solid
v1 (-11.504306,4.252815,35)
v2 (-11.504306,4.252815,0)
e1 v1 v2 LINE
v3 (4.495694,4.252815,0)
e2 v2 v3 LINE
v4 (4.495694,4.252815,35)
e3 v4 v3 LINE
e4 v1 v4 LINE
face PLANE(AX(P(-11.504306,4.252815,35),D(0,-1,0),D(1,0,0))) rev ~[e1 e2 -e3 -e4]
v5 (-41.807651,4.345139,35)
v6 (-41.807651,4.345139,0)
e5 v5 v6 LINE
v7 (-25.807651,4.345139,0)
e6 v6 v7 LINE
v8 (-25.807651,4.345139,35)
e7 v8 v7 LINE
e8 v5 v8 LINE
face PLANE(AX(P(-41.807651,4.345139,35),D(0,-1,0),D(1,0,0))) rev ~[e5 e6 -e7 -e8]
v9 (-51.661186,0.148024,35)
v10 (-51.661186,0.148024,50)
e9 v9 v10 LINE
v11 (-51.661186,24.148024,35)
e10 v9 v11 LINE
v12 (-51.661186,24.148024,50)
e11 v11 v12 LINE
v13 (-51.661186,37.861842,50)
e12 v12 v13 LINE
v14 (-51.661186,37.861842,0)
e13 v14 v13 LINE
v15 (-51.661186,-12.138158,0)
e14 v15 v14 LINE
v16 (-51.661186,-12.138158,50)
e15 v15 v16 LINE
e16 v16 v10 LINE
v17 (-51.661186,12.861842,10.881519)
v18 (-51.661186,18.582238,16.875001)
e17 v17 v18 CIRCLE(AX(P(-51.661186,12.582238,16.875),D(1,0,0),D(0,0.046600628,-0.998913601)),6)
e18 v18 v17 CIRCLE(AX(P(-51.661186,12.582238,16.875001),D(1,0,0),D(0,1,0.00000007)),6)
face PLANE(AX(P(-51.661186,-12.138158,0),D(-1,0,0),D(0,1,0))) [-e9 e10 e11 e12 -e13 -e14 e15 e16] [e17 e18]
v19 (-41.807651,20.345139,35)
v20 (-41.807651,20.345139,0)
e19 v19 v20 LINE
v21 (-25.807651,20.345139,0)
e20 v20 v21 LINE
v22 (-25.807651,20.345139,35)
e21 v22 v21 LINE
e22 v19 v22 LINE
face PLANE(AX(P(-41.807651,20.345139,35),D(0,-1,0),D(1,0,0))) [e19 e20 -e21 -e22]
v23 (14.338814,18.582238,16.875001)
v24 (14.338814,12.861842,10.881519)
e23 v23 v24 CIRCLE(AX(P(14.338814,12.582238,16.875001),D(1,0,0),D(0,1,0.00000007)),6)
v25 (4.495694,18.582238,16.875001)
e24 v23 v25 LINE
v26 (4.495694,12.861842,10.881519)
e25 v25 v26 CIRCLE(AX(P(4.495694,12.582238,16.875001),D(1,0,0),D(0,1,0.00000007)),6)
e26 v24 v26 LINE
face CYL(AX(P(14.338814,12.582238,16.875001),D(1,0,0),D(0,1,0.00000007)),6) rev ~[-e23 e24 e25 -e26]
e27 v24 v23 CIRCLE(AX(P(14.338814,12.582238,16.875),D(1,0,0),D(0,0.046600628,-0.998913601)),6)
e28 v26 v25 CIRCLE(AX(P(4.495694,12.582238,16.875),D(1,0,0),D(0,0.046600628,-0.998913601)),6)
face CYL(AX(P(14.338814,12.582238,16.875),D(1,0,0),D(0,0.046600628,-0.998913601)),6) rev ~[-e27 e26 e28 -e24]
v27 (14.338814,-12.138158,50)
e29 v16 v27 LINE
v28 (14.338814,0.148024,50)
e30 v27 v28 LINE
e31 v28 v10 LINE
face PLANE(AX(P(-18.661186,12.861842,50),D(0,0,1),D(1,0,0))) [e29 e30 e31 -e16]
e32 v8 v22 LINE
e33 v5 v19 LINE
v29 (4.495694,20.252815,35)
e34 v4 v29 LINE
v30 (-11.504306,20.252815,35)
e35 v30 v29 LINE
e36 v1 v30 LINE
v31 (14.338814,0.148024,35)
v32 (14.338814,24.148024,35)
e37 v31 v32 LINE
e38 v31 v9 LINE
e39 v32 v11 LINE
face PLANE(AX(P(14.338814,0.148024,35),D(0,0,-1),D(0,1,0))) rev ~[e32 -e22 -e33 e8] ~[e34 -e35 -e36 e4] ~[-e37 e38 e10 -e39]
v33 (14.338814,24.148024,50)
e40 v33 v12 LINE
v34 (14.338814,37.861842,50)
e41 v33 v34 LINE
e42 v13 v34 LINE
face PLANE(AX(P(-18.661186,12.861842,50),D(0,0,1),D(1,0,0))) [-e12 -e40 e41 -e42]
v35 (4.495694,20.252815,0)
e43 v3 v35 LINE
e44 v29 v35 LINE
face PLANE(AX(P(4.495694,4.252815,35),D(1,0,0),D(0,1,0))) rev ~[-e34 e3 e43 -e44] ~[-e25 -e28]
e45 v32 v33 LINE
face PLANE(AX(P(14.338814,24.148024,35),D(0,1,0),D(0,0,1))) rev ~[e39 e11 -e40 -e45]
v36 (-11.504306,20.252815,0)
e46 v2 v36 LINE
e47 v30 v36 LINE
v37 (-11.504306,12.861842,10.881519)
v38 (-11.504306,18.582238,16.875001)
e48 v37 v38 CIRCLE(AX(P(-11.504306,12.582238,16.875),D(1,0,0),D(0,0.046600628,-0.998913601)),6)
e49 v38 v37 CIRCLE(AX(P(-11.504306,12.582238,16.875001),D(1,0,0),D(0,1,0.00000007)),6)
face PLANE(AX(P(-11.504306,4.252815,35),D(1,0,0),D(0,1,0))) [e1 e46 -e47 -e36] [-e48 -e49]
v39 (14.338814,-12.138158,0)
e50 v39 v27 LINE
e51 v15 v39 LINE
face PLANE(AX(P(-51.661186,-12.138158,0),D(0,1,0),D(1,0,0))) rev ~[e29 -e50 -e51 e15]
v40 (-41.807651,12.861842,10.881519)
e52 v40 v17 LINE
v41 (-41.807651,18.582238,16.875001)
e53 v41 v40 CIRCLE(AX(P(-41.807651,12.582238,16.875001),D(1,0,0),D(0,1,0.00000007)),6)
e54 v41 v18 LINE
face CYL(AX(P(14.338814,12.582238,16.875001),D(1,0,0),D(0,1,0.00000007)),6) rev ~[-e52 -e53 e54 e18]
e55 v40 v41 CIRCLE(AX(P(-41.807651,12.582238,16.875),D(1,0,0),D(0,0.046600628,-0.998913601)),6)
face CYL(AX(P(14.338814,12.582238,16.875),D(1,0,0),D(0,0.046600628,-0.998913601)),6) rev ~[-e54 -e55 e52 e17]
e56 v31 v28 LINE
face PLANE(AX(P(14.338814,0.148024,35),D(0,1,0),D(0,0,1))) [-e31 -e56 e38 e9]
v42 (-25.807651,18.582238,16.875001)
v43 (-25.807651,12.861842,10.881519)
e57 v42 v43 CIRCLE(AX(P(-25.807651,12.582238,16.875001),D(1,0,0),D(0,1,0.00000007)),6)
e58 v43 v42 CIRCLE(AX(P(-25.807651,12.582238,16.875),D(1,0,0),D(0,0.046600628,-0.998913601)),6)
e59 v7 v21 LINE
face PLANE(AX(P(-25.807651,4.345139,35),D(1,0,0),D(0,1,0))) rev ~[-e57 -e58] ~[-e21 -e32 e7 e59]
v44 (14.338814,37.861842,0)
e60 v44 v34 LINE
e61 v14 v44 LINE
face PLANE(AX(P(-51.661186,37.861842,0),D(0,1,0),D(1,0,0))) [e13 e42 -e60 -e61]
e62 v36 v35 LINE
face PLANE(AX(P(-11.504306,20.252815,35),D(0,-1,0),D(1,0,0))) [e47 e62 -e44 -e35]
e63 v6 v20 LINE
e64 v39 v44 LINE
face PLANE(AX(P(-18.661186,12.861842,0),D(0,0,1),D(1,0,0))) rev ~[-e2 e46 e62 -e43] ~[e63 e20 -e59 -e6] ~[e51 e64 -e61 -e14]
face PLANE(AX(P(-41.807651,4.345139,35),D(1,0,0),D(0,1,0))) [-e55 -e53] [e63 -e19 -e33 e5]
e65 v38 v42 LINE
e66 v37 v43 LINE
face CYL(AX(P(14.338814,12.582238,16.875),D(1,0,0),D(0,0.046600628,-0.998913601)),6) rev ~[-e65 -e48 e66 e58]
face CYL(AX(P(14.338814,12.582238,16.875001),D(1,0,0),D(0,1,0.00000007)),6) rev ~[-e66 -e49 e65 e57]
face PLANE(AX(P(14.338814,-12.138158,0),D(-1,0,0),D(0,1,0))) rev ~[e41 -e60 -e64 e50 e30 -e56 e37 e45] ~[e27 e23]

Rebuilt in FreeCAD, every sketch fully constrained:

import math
import FreeCAD as App
import Part
import Sketcher
from FreeCAD import Vector
Q = App.Units.Quantity


def add_polygon(sketch, points):
    """Adds a closed chain of lines whose ends are joined by coincident constraints."""
    first, n = sketch.GeometryCount, len(points)
    for a, b in zip(points, points[1:] + points[:1]):
        sketch.addGeometry(Part.LineSegment(App.Vector(*a, 0), App.Vector(*b, 0)), False)
    for i in range(n):
        sketch.addConstraint(Sketcher.Constraint("Coincident", first + i, 2, first + (i + 1) % n, 1))

doc = App.newDocument("Part")
body = doc.addObject("PartDesign::Body", "Body")

# Sketch on XY plane
sketch1 = doc.addObject("Sketcher::SketchObject", "Sketch")
body.addObject(sketch1)
sketch1.AttachmentSupport = (doc.XY_Plane, [""])
sketch1.MapMode = "FlatFace"
add_polygon(sketch1, [(-52, 38), (-52, -12), (14, -12), (14, 38)])  # lines 0-3
sketch1.addConstraint(Sketcher.Constraint("Vertical", 0))
sketch1.addConstraint(Sketcher.Constraint("Horizontal", 1))
sketch1.addConstraint(Sketcher.Constraint("Vertical", 2))
sketch1.addConstraint(Sketcher.Constraint("Horizontal", 3))
sketch1.addConstraint(Sketcher.Constraint("DistanceX", 1, 1, 1, 2, Q("66 mm")))
sketch1.addConstraint(Sketcher.Constraint("DistanceY", 0, 2, 0, 1, Q("50 mm")))
sketch1.addConstraint(Sketcher.Constraint("DistanceY", 0, 2, -1, 1, Q("12.138158 mm")))
sketch1.addConstraint(Sketcher.Constraint("DistanceX", 0, 2, -1, 1, Q("51.661186 mm")))
pad1 = doc.addObject("PartDesign::Pad", "Pad")
body.addObject(pad1)
pad1.Profile = sketch1
pad1.Length = 50

# Sketch on YZ plane
sketch2 = doc.addObject("Sketcher::SketchObject", "Sketch001")
body.addObject(sketch2)
sketch2.AttachmentSupport = (doc.YZ_Plane, [""])
sketch2.MapMode = "FlatFace"
sketch2.AttachmentOffset = App.Placement(Vector(0, 0, 14.338814), App.Rotation())
add_polygon(sketch2, [(0, 50), (0, 35), (24, 35), (24, 50)])  # lines 0-3
sketch2.addConstraint(Sketcher.Constraint("Vertical", 0))
sketch2.addConstraint(Sketcher.Constraint("Horizontal", 1))
sketch2.addConstraint(Sketcher.Constraint("Vertical", 2))
sketch2.addConstraint(Sketcher.Constraint("Horizontal", 3))
sketch2.addConstraint(Sketcher.Constraint("DistanceX", 1, 1, 1, 2, Q("24 mm")))
sketch2.addConstraint(Sketcher.Constraint("DistanceY", 0, 2, 0, 1, Q("15 mm")))
sketch2.addConstraint(Sketcher.Constraint("DistanceY", -1, 1, 0, 2, Q("35 mm")))
sketch2.addConstraint(Sketcher.Constraint("DistanceX", -1, 1, 0, 2, Q("0.148024 mm")))
pocket1 = doc.addObject("PartDesign::Pocket", "Pocket")
body.addObject(pocket1)
pocket1.Profile = sketch2
pocket1.Length = 66

# Sketch on YZ plane
sketch3 = doc.addObject("Sketcher::SketchObject", "Sketch002")
body.addObject(sketch3)
sketch3.AttachmentSupport = (doc.YZ_Plane, [""])
sketch3.MapMode = "FlatFace"
sketch3.AttachmentOffset = App.Placement(Vector(0, 0, 14.338814), App.Rotation())
sketch3.addGeometry(Part.ArcOfCircle(Part.Circle(Vector(13, 17, 0), Vector(0, 0, 1), 6), math.radians(-87), math.radians(0)), False)
sketch3.addGeometry(Part.ArcOfCircle(Part.Circle(Vector(13, 17, 0), Vector(0, 0, 1), 6), math.radians(0), math.radians(273)), False)
sketch3.addConstraint(Sketcher.Constraint("Tangent", 0, 1, 1, 2))
sketch3.addConstraint(Sketcher.Constraint("Coincident", 1, 1, 0, 2))
sketch3.addConstraint(Sketcher.Constraint("Horizontal", 0, 3, 1, 1))
sketch3.addConstraint(Sketcher.Constraint("Radius", 0, Q("6 mm")))
sketch3.addConstraint(Sketcher.Constraint("DistanceY", -1, 1, 0, 3, Q("16.875 mm")))
sketch3.addConstraint(Sketcher.Constraint("DistanceX", -1, 1, 0, 3, Q("12.582238 mm")))
sketch3.addConstraint(Sketcher.Constraint("DistanceX", -1, 1, 0, 1, Q("12.861842 mm")))
pocket2 = doc.addObject("PartDesign::Pocket", "Pocket001")
body.addObject(pocket2)
pocket2.Profile = sketch3
pocket2.Length = 66

# Sketch on XY plane
sketch4 = doc.addObject("Sketcher::SketchObject", "Sketch003")
body.addObject(sketch4)
sketch4.AttachmentSupport = (doc.XY_Plane, [""])
sketch4.MapMode = "FlatFace"
sketch4.AttachmentOffset = App.Placement(Vector(0, 0, 35), App.Rotation())
add_polygon(sketch4, [(-42, 20), (-42, 4), (-26, 4), (-26, 20)])  # lines 0-3
add_polygon(sketch4, [(-12, 20), (-12, 4), (4, 4), (4, 20)])  # lines 4-7
sketch4.addConstraint(Sketcher.Constraint("Vertical", 0))
sketch4.addConstraint(Sketcher.Constraint("Horizontal", 1))
sketch4.addConstraint(Sketcher.Constraint("Vertical", 2))
sketch4.addConstraint(Sketcher.Constraint("Horizontal", 3))
sketch4.addConstraint(Sketcher.Constraint("Vertical", 4))
sketch4.addConstraint(Sketcher.Constraint("Horizontal", 5))
sketch4.addConstraint(Sketcher.Constraint("Vertical", 6))
sketch4.addConstraint(Sketcher.Constraint("Horizontal", 7))
sketch4.addConstraint(Sketcher.Constraint("Equal", 3, 5))
sketch4.addConstraint(Sketcher.Constraint("Equal", 7, 0))
sketch4.addConstraint(Sketcher.Constraint("Equal", 2, 4))
sketch4.addConstraint(Sketcher.Constraint("DistanceX", 1, 1, 1, 2, Q("16 mm")))
sketch4.addConstraint(Sketcher.Constraint("DistanceX", 0, 2, -1, 1, Q("41.807651 mm")))
sketch4.addConstraint(Sketcher.Constraint("DistanceY", -1, 1, 0, 2, Q("4.345139 mm")))
sketch4.addConstraint(Sketcher.Constraint("DistanceX", 4, 2, -1, 1, Q("11.504306 mm")))
sketch4.addConstraint(Sketcher.Constraint("DistanceY", -1, 1, 4, 2, Q("4.252815 mm")))
pocket3 = doc.addObject("PartDesign::Pocket", "Pocket002")
body.addObject(pocket3)
pocket3.Profile = sketch4
pocket3.Length = 50

doc.recompute()
